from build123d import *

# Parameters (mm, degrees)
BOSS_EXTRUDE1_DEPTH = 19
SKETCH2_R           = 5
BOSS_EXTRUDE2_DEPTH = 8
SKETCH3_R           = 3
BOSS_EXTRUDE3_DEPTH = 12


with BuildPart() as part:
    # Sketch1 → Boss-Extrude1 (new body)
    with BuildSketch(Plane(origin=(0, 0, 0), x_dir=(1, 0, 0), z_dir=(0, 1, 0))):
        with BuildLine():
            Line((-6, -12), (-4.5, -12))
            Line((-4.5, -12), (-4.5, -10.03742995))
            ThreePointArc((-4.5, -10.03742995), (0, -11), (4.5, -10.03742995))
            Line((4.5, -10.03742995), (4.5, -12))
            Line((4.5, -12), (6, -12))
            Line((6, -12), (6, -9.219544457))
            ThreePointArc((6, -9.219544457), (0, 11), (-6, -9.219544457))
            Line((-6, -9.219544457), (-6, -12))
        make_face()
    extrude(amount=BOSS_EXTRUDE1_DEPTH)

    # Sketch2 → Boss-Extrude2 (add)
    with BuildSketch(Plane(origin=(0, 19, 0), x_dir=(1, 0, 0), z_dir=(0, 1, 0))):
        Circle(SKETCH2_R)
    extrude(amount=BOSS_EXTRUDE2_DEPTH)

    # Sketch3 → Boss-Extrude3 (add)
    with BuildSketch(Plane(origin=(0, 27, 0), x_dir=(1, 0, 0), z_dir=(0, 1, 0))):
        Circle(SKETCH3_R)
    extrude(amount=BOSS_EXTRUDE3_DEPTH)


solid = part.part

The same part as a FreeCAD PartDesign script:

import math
import FreeCAD as App
import Part
import Sketcher
from FreeCAD import Vector

doc = App.newDocument("Part")
body = doc.addObject("PartDesign::Body", "Body")

sketch1 = body.newObject("Sketcher::SketchObject", "Sketch")
sketch1.AttachmentSupport = (doc.getObject("XZ_Plane"), [""])
sketch1.MapMode = "FlatFace"
sketch1.addGeometry([
    Part.LineSegment(Vector(-6, 12, 0), Vector(-4.5, 12, 0)),
    Part.LineSegment(Vector(-4.5, 12, 0), Vector(-4.5, 10.03743, 0)),
    Part.ArcOfCircle(Part.Circle(Vector(0, 0, 0), Vector(0, 0, 1), 11), math.radians(65.85226), math.radians(114.14774)),
    Part.LineSegment(Vector(4.5, 10.03743, 0), Vector(4.5, 12, 0)),
    Part.LineSegment(Vector(4.5, 12, 0), Vector(6, 12, 0)),
    Part.LineSegment(Vector(6, 12, 0), Vector(6, 9.219544, 0)),
    Part.ArcOfCircle(Part.Circle(Vector(0, 0, 0), Vector(0, 0, 1), 11), math.radians(123.055731), math.radians(416.944269)),
    Part.LineSegment(Vector(-6, 9.219544, 0), Vector(-6, 12, 0)),
], False)
sketch1.addConstraint([
    Sketcher.Constraint("Coincident", 0, 2, 1, 1),
    Sketcher.Constraint("Coincident", 1, 2, 2, 2),
    Sketcher.Constraint("Coincident", 2, 1, 3, 1),
    Sketcher.Constraint("Coincident", 3, 2, 4, 1),
    Sketcher.Constraint("Coincident", 4, 2, 5, 1),
    Sketcher.Constraint("Coincident", 5, 2, 6, 2),
    Sketcher.Constraint("Coincident", 6, 1, 7, 1),
    Sketcher.Constraint("Coincident", 7, 2, 0, 1),
    Sketcher.Constraint("Horizontal", 0),
    Sketcher.Constraint("Vertical", 1),
    Sketcher.Constraint("Vertical", 3),
    Sketcher.Constraint("Horizontal", 4),
    Sketcher.Constraint("Vertical", 5),
    Sketcher.Constraint("Vertical", 7),
    Sketcher.Constraint("Coincident", 2, 3, -1, 1),
    Sketcher.Constraint("Coincident", 6, 3, -1, 1),
    Sketcher.Constraint("Equal", 2, 6),
    Sketcher.Constraint("Symmetric", 0, 2, 3, 2, -2),
    Sketcher.Constraint("Horizontal", 5, 2, 6, 1),
    Sketcher.Constraint("Radius", 2, 11.0),
    Sketcher.Constraint("DistanceX", 0, 1, 0, 2, 1.5),
    Sketcher.Constraint("DistanceY", -1, 1, 0, 2, 12.0),
    Sketcher.Constraint("DistanceX", -1, 1, 4, 2, 6.0),
])
pad1 = body.newObject("PartDesign::Pad", "Pad")
pad1.Profile = sketch1
pad1.Length = 19
pad1.Reversed = True

sketch2 = body.newObject("Sketcher::SketchObject", "Sketch001")
sketch2.AttachmentSupport = (doc.getObject("XZ_Plane"), [""])
sketch2.MapMode = "FlatFace"
sketch2.AttachmentOffset = App.Placement(Vector(0, 0, -19), App.Rotation())
sketch2.addGeometry(Part.Circle(Vector(0, 0, 0), Vector(0, 0, 1), 5), False)
sketch2.addConstraint([
    Sketcher.Constraint("Coincident", 0, 3, -1, 1),
    Sketcher.Constraint("Diameter", 0, 10.0),
])
pad2 = body.newObject("PartDesign::Pad", "Pad001")
pad2.Profile = sketch2
pad2.Length = 8
pad2.Reversed = True

sketch3 = body.newObject("Sketcher::SketchObject", "Sketch002")
sketch3.AttachmentSupport = (doc.getObject("XZ_Plane"), [""])
sketch3.MapMode = "FlatFace"
sketch3.AttachmentOffset = App.Placement(Vector(0, 0, -27), App.Rotation())
sketch3.addGeometry(Part.Circle(Vector(0, 0, 0), Vector(0, 0, 1), 3), False)
sketch3.addConstraint([
    Sketcher.Constraint("Coincident", 0, 3, -1, 1),
    Sketcher.Constraint("Diameter", 0, 6.0),
])
pad3 = body.newObject("PartDesign::Pad", "Pad002")
pad3.Profile = sketch3
pad3.Length = 12
pad3.Reversed = True

doc.recompute()
